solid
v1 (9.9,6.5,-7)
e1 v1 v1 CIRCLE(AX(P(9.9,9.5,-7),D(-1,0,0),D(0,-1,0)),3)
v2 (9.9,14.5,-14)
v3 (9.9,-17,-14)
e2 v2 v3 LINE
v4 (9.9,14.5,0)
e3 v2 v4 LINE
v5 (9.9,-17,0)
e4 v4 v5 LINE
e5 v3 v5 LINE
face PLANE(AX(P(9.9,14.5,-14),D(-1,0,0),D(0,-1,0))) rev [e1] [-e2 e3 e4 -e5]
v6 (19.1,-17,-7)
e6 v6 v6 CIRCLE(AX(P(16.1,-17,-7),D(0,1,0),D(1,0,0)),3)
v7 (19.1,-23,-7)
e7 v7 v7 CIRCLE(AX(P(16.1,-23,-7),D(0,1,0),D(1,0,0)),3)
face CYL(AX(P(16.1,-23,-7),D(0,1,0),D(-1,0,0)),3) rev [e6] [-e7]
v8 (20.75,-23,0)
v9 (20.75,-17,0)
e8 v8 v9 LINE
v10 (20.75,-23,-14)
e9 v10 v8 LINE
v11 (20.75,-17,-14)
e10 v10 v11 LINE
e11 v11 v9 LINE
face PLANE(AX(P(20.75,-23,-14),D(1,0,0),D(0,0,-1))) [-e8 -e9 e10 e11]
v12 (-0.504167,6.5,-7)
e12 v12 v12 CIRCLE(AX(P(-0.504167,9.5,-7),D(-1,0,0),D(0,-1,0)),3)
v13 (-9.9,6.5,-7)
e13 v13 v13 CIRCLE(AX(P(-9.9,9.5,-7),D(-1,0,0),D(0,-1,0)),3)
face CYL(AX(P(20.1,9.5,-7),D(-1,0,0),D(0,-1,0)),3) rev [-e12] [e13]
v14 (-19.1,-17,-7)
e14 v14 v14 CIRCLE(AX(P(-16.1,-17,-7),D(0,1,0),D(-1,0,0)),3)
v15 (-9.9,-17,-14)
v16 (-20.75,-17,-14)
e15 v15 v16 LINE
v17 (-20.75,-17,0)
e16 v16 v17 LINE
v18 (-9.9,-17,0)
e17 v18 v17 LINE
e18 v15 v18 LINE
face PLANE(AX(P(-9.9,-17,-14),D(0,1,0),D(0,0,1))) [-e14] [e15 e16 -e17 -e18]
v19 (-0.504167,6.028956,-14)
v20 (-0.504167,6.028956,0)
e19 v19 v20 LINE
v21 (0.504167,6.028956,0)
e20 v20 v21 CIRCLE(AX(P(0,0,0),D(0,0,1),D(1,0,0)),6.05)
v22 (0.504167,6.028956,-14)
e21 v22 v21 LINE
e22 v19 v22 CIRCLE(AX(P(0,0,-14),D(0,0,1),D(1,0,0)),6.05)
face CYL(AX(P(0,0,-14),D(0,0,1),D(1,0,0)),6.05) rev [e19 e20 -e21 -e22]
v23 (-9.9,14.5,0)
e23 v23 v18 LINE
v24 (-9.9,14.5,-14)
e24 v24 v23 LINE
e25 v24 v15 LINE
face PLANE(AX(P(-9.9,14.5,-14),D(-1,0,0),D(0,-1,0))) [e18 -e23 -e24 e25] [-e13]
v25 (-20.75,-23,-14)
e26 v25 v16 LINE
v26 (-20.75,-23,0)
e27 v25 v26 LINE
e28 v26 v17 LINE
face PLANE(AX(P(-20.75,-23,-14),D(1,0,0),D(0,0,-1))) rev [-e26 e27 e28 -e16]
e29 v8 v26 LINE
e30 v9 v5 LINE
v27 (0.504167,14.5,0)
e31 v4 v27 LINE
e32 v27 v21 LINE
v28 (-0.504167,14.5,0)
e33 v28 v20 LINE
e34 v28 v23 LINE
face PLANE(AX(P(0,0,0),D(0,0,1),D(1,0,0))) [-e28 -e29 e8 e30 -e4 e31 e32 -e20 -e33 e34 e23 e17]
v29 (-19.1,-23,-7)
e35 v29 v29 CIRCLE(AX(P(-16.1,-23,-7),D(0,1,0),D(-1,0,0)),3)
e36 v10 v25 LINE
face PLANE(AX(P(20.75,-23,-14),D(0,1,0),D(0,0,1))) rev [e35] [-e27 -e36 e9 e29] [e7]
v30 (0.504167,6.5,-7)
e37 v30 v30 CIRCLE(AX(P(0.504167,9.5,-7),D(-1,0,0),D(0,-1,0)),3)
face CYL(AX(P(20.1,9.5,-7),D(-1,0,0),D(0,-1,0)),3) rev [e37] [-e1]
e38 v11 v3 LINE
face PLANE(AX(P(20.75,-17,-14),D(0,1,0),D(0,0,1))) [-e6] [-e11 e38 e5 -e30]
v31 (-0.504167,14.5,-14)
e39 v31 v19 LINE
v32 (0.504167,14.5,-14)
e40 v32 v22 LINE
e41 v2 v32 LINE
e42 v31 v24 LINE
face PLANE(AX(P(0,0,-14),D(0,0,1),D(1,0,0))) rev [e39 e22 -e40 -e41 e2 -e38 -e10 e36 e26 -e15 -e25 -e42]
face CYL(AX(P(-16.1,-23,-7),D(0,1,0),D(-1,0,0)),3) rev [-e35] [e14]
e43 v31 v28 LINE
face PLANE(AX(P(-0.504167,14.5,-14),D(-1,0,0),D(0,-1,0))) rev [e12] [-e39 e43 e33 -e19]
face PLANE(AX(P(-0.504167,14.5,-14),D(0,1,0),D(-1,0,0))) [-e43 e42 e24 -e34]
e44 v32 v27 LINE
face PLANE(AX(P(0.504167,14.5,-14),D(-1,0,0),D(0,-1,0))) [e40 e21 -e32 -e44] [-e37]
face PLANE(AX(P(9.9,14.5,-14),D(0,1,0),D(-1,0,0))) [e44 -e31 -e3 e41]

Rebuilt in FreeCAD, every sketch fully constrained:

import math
import FreeCAD as App
import Part
import Sketcher

V = App.Vector
Q = App.Units.Quantity

doc = App.newDocument("Part")
body = doc.addObject("PartDesign::Body", "Body")

sketch1 = body.newObject("Sketcher::SketchObject", "Sketch")
sketch1.AttachmentSupport = (doc.getObject("XY_Plane"), [""])
sketch1.MapMode = "FlatFace"
sketch1.addGeometry(Part.LineSegment(V(-0.504167, 14.5, 0), V(-9.9, 14.5, 0)), False)
sketch1.addGeometry(Part.LineSegment(V(-9.9, 14.5, 0), V(-9.9, -17, 0)), False)
sketch1.addGeometry(Part.LineSegment(V(-9.9, -17, 0), V(-20.75, -17, 0)), False)
sketch1.addGeometry(Part.LineSegment(V(-20.75, -17, 0), V(-20.75, -23, 0)), False)
sketch1.addGeometry(Part.LineSegment(V(-20.75, -23, 0), V(20.75, -23, 0)), False)
sketch1.addGeometry(Part.LineSegment(V(20.75, -23, 0), V(20.75, -17, 0)), False)
sketch1.addGeometry(Part.LineSegment(V(20.75, -17, 0), V(9.9, -17, 0)), False)
sketch1.addGeometry(Part.LineSegment(V(9.9, -17, 0), V(9.9, 14.5, 0)), False)
sketch1.addGeometry(Part.LineSegment(V(9.9, 14.5, 0), V(0.504167, 14.5, 0)), False)
sketch1.addGeometry(Part.LineSegment(V(0.504167, 14.5, 0), V(0.504167, 6.028956, 0)), False)
sketch1.addGeometry(Part.ArcOfCircle(Part.Circle(V(0, 0, 0), V(0, 0, 1), 6.05), math.radians(94.780192), math.radians(445.219808)), False)
sketch1.addGeometry(Part.LineSegment(V(-0.504167, 6.028956, 0), V(-0.504167, 14.5, 0)), False)
sketch1.addConstraint(Sketcher.Constraint("Coincident", 0, 2, 1, 1))
sketch1.addConstraint(Sketcher.Constraint("Coincident", 1, 2, 2, 1))
sketch1.addConstraint(Sketcher.Constraint("Coincident", 2, 2, 3, 1))
sketch1.addConstraint(Sketcher.Constraint("Coincident", 3, 2, 4, 1))
sketch1.addConstraint(Sketcher.Constraint("Coincident", 4, 2, 5, 1))
sketch1.addConstraint(Sketcher.Constraint("Coincident", 5, 2, 6, 1))
sketch1.addConstraint(Sketcher.Constraint("Coincident", 6, 2, 7, 1))
sketch1.addConstraint(Sketcher.Constraint("Coincident", 7, 2, 8, 1))
sketch1.addConstraint(Sketcher.Constraint("Coincident", 8, 2, 9, 1))
sketch1.addConstraint(Sketcher.Constraint("Coincident", 9, 2, 10, 2))
sketch1.addConstraint(Sketcher.Constraint("Coincident", 10, 1, 11, 1))
sketch1.addConstraint(Sketcher.Constraint("Coincident", 11, 2, 0, 1))
sketch1.addConstraint(Sketcher.Constraint("Horizontal", 0))
sketch1.addConstraint(Sketcher.Constraint("Vertical", 1))
sketch1.addConstraint(Sketcher.Constraint("Horizontal", 2))
sketch1.addConstraint(Sketcher.Constraint("Vertical", 3))
sketch1.addConstraint(Sketcher.Constraint("Horizontal", 4))
sketch1.addConstraint(Sketcher.Constraint("Vertical", 5))
sketch1.addConstraint(Sketcher.Constraint("Horizontal", 6))
sketch1.addConstraint(Sketcher.Constraint("Vertical", 7))
sketch1.addConstraint(Sketcher.Constraint("Horizontal", 8))
sketch1.addConstraint(Sketcher.Constraint("Vertical", 9))
sketch1.addConstraint(Sketcher.Constraint("Vertical", 11))
sketch1.addConstraint(Sketcher.Constraint("Coincident", 10, 3, -1, 1))
sketch1.addConstraint(Sketcher.Constraint("Symmetric", 2, 2, 5, 2, -2))
sketch1.addConstraint(Sketcher.Constraint("Symmetric", 0, 2, 7, 2, -2))
sketch1.addConstraint(Sketcher.Constraint("Horizontal", 9, 2, 10, 1))
sketch1.addConstraint(Sketcher.Constraint("DistanceY", 3, 2, 3, 1, Q("6 mm")))
sketch1.addConstraint(Sketcher.Constraint("Radius", 10, Q("6.05 mm")))
sketch1.addConstraint(Sketcher.Constraint("DistanceX", 4, 1, 4, 2, Q("41.5 mm")))
sketch1.addConstraint(Sketcher.Constraint("DistanceY", 1, 2, 1, 1, Q("31.5 mm")))
sketch1.addConstraint(Sketcher.Constraint("DistanceY", 1, 2, -1, 1, Q("17 mm")))
sketch1.addConstraint(Sketcher.Constraint("DistanceX", 2, 2, 2, 1, Q("10.85 mm")))
sketch1.addConstraint(Sketcher.Constraint("DistanceX", 0, 2, 0, 1, Q("9.395833 mm")))
pad1 = body.newObject("PartDesign::Pad", "Pad")
pad1.Profile = sketch1
pad1.Length = 14
pad1.Reversed = True

sketch2 = body.newObject("Sketcher::SketchObject", "Sketch001")
sketch2.AttachmentSupport = (doc.getObject("YZ_Plane"), [""])
sketch2.MapMode = "FlatFace"
sketch2.AttachmentOffset = App.Placement(V(0, 0, -9.9), App.Rotation())
sketch2.addGeometry(Part.Circle(V(9.5, -7, 0), V(0, 0, 1), 3), False)
sketch2.addConstraint(Sketcher.Constraint("Diameter", 0, Q("6 mm")))
sketch2.addConstraint(Sketcher.Constraint("DistanceY", 0, 3, -1, 1, Q("7 mm")))
sketch2.addConstraint(Sketcher.Constraint("DistanceX", -1, 1, 0, 3, Q("9.5 mm")))
pocket1 = body.newObject("PartDesign::Pocket", "Pocket")
pocket1.Profile = sketch2
pocket1.Length = 30
pocket1.Reversed = True

sketch3 = body.newObject("Sketcher::SketchObject", "Sketch002")
sketch3.AttachmentSupport = (doc.getObject("XZ_Plane"), [""])
sketch3.MapMode = "FlatFace"
sketch3.AttachmentOffset = App.Placement(V(0, 0, 17), App.Rotation())
sketch3.addGeometry(Part.Circle(V(-16.1, -7, 0), V(0, 0, 1), 3), False)
sketch3.addGeometry(Part.Circle(V(16.1, -7, 0), V(0, 0, 1), 3), False)
sketch3.addConstraint(Sketcher.Constraint("Equal", 0, 1))
sketch3.addConstraint(Sketcher.Constraint("Symmetric", 0, 3, 1, 3, -2))
sketch3.addConstraint(Sketcher.Constraint("Diameter", 0, Q("6 mm")))
sketch3.addConstraint(Sketcher.Constraint("DistanceY", 0, 3, -1, 1, Q("7 mm")))
sketch3.addConstraint(Sketcher.Constraint("DistanceX", 0, 3, -1, 1, Q("16.1 mm")))
pocket2 = body.newObject("PartDesign::Pocket", "Pocket001")
pocket2.Profile = sketch3
pocket2.Type = "ThroughAll"
pocket2.Reversed = True

doc.recompute()
